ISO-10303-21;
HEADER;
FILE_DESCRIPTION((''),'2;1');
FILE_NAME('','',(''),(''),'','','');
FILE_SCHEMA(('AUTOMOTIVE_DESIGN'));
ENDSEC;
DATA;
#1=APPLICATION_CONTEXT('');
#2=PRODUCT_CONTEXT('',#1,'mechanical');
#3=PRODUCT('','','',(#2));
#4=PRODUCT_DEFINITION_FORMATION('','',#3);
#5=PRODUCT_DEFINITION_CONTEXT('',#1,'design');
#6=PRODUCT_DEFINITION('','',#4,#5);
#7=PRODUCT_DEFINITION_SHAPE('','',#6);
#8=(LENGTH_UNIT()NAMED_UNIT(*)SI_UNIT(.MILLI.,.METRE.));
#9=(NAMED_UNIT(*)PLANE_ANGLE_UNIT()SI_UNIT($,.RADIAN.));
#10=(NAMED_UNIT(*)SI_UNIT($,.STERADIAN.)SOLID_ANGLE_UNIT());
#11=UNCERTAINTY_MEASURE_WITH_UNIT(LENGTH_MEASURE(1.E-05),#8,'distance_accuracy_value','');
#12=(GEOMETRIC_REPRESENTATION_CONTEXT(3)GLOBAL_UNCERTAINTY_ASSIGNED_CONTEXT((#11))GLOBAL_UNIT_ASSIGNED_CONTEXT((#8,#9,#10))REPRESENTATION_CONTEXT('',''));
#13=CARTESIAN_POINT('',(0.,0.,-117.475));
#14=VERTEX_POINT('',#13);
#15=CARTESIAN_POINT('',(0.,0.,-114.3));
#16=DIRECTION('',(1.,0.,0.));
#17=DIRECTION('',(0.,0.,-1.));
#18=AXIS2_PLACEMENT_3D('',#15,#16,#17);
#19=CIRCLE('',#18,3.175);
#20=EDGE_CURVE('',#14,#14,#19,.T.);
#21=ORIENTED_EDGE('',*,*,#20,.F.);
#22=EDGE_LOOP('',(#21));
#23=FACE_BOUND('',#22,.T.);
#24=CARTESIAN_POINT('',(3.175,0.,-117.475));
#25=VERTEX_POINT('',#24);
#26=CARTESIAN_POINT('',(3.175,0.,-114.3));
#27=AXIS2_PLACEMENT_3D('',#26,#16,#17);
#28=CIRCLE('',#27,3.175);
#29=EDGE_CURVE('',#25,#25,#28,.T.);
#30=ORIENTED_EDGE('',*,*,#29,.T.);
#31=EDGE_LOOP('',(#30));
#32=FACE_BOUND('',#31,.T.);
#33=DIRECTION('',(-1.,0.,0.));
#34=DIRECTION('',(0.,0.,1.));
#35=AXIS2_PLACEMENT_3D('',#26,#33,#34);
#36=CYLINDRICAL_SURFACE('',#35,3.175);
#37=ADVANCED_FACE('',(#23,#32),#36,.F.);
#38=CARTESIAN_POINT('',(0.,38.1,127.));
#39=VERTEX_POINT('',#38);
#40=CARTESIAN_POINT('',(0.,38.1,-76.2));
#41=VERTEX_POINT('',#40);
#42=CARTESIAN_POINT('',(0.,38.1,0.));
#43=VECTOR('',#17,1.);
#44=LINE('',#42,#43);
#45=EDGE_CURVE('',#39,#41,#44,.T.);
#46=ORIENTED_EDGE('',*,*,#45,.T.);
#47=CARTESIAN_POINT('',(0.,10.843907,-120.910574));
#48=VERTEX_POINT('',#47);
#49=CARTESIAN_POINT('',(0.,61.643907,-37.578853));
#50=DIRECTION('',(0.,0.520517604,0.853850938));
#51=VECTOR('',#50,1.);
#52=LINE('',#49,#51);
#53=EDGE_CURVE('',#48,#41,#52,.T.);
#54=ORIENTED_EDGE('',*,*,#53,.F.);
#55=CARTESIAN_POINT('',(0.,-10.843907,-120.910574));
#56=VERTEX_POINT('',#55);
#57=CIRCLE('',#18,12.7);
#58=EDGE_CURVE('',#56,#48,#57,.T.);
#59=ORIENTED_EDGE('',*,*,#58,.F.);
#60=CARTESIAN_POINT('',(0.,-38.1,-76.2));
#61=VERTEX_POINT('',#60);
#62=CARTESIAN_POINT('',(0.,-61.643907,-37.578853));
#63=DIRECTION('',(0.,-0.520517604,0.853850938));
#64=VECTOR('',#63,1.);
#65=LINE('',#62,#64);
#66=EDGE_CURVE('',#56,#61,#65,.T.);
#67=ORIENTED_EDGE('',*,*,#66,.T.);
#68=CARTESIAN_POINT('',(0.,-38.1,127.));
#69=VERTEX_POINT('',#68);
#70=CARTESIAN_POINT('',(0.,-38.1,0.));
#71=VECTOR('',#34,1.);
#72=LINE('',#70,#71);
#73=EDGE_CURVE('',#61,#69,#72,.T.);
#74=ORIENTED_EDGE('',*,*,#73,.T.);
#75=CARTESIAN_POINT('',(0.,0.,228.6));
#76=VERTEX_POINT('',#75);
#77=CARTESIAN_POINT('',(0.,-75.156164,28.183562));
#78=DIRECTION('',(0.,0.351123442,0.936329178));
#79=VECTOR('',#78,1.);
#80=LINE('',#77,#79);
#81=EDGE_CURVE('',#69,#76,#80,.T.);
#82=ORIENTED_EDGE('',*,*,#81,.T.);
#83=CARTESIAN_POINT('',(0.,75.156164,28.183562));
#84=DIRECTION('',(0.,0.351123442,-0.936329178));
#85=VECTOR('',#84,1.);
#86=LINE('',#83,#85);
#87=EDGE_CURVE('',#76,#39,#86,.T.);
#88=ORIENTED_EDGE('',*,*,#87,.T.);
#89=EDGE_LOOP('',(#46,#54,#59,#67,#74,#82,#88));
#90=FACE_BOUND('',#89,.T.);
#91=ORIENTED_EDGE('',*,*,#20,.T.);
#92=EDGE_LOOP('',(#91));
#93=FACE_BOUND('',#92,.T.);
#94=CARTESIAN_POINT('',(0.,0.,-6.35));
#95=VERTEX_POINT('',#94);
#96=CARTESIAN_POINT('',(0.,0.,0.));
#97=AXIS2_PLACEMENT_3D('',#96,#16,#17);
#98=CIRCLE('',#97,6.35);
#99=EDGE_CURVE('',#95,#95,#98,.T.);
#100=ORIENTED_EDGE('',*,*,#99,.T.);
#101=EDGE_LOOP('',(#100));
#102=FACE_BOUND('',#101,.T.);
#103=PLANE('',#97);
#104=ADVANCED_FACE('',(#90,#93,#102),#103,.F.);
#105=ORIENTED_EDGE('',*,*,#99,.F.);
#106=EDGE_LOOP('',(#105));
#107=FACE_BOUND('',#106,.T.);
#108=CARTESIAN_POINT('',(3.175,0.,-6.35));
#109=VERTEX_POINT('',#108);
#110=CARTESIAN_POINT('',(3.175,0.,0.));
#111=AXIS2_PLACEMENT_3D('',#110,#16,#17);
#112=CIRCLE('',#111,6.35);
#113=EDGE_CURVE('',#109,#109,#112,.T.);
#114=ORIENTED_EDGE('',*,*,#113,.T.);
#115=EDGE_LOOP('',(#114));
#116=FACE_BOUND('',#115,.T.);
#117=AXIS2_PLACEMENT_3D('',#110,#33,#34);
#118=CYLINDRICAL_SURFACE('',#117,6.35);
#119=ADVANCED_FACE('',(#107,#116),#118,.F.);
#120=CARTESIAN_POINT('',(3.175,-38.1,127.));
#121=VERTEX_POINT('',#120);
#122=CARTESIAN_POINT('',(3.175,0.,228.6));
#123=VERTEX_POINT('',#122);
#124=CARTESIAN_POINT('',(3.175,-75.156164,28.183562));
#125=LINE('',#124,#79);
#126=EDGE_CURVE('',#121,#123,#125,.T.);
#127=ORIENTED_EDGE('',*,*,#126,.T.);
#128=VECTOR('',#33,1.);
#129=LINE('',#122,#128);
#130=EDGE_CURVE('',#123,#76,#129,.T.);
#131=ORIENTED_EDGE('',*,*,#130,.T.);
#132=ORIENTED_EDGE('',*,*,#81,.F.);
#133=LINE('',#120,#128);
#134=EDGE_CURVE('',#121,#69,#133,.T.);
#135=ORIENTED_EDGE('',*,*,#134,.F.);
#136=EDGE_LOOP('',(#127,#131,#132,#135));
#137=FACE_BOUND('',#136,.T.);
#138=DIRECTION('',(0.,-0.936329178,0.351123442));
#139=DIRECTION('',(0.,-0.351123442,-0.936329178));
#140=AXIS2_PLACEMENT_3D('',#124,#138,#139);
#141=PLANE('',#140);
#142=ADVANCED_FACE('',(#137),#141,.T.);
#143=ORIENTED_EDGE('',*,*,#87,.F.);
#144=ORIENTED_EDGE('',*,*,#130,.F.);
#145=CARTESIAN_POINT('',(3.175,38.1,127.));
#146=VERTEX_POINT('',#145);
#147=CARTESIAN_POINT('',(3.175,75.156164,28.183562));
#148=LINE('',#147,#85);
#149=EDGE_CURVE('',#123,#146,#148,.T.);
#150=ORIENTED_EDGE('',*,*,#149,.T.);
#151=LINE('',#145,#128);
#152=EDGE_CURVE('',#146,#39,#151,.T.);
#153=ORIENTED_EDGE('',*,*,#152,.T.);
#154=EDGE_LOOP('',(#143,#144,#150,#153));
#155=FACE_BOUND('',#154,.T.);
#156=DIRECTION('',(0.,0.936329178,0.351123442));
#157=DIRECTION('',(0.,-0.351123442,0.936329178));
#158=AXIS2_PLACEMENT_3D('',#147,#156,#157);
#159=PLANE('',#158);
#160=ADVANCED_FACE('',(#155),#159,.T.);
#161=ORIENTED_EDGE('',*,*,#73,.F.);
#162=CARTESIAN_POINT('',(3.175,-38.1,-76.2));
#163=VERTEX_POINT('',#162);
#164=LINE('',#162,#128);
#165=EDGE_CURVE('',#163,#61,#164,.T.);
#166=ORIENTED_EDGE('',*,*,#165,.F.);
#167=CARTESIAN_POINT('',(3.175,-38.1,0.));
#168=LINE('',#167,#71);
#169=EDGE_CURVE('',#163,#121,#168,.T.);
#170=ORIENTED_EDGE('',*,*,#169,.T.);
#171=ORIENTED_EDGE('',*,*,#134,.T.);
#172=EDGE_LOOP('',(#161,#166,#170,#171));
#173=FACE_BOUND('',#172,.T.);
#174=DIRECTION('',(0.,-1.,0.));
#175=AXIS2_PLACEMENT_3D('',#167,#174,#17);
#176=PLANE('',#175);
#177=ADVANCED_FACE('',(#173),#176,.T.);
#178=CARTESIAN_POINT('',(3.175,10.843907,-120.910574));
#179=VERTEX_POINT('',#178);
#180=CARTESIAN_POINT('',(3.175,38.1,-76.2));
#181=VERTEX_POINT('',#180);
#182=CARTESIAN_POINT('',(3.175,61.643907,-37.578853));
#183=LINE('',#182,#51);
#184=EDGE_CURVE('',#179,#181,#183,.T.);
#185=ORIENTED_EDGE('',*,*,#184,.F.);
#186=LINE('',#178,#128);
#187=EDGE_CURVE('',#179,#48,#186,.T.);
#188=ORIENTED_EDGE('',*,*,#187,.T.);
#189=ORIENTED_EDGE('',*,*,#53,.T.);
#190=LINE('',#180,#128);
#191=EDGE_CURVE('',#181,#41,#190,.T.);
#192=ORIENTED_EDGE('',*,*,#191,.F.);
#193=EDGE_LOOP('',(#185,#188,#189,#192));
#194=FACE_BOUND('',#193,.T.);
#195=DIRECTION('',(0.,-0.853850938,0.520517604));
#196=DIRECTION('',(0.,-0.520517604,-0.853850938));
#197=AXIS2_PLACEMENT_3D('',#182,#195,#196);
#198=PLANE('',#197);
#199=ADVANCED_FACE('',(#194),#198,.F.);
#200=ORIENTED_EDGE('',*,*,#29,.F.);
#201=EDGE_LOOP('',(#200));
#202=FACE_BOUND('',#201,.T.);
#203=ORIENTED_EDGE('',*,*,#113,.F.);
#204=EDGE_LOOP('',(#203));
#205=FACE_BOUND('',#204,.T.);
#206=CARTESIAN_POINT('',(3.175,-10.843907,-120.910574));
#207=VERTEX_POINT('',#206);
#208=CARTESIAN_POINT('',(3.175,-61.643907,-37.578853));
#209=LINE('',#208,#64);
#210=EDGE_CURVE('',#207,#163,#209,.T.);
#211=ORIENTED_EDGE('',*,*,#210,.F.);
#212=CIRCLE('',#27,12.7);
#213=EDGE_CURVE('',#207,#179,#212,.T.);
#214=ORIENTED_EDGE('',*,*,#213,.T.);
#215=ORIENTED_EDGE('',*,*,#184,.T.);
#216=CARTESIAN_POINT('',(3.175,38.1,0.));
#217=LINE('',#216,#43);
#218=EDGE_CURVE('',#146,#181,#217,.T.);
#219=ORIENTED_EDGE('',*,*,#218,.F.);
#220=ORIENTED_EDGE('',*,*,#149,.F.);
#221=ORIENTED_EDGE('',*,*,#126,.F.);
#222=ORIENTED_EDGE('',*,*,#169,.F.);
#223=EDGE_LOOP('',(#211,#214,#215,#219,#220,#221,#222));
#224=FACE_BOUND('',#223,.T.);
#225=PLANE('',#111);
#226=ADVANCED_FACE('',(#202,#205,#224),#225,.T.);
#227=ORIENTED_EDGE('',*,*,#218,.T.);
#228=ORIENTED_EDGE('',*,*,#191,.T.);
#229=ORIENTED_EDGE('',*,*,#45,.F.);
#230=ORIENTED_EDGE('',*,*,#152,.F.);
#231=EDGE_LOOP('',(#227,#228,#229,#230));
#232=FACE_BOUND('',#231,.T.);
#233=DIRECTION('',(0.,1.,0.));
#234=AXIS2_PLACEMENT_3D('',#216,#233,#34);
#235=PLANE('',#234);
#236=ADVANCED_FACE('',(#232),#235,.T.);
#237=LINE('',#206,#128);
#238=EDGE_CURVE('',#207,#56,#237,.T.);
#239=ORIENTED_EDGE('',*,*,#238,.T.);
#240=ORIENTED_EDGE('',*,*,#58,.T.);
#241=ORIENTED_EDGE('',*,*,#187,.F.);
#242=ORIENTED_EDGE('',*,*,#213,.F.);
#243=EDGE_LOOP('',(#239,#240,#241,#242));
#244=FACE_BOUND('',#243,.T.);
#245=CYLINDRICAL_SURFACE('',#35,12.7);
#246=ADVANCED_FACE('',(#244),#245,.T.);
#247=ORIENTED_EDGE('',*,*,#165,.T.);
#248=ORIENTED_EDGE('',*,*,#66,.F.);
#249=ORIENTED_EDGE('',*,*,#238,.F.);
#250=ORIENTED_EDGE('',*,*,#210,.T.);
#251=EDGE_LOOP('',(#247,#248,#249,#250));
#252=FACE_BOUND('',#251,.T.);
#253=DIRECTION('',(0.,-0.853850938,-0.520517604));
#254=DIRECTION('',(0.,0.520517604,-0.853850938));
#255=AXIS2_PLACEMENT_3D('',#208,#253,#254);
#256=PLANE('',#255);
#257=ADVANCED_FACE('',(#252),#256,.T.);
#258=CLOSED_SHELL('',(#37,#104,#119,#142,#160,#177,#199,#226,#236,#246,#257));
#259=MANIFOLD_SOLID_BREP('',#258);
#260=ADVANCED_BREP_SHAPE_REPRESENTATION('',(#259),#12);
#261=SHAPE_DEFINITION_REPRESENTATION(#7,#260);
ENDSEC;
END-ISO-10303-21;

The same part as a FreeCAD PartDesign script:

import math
import FreeCAD as App
import Part
import Sketcher
from FreeCAD import Vector
Q = App.Units.Quantity

doc = App.newDocument("Part")
body = doc.addObject("PartDesign::Body", "Body")

sketch1 = body.newObject("Sketcher::SketchObject", "Sketch")
sketch1.AttachmentSupport = (doc.getObject("YZ_Plane"), [""])
sketch1.MapMode = "FlatFace"
sketch1.addGeometry([
    Part.LineSegment(Vector(0, 228.6, 0), Vector(-38.1, 127, 0)),
    Part.LineSegment(Vector(-38.1, 127, 0), Vector(-38.1, -76.2, 0)),
    Part.LineSegment(Vector(-38.1, -76.2, 0), Vector(-16.3, -111.9, 0)),
    Part.LineSegment(Vector(-16.3, -111.9, 0), Vector(-10.8, -120.9, 0)),
    Part.ArcOfCircle(Part.Circle(Vector(0, -114.3, 0), Vector(0, 0, 1), 12.7), math.radians(-149), math.radians(-31)),
    Part.LineSegment(Vector(10.8, -120.9, 0), Vector(16.3, -111.9, 0)),
    Part.LineSegment(Vector(16.3, -111.9, 0), Vector(38.1, -76.2, 0)),
    Part.LineSegment(Vector(38.1, -76.2, 0), Vector(38.1, 127, 0)),
    Part.LineSegment(Vector(38.1, 127, 0), Vector(0, 228.6, 0)),
    Part.Circle(Vector(0, 0, 0), Vector(0, 0, 1), 6.3),
    Part.Circle(Vector(0, -114.3, 0), Vector(0, 0, 1), 3.2),
], False)
sketch1.addConstraint([
    Sketcher.Constraint("Coincident", 0, 2, 1, 1),
    Sketcher.Constraint("Coincident", 1, 2, 2, 1),
    Sketcher.Constraint("Coincident", 2, 2, 3, 1),
    Sketcher.Constraint("Tangent", 3, 2, 4, 1),
    Sketcher.Constraint("Tangent", 4, 2, 5, 1),
    Sketcher.Constraint("Coincident", 5, 2, 6, 1),
    Sketcher.Constraint("Coincident", 6, 2, 7, 1),
    Sketcher.Constraint("Coincident", 7, 2, 8, 1),
    Sketcher.Constraint("Coincident", 8, 2, 0, 1),
    Sketcher.Constraint("Vertical", 1),
    Sketcher.Constraint("Vertical", 7),
    Sketcher.Constraint("Coincident", 9, 3, -1, 1),
    Sketcher.Constraint("Coincident", 10, 3, 4, 3),
    Sketcher.Constraint("Symmetric", 3, 2, 4, 2, -2),
    Sketcher.Constraint("Symmetric", 1, 2, 6, 2, -2),
    Sketcher.Constraint("PointOnObject", 8, 2, -2),
    Sketcher.Constraint("Parallel", 2, 3),
    Sketcher.Constraint("Horizontal", 2, 2, 5, 2),
    Sketcher.Constraint("Horizontal", 0, 2, 7, 2),
    Sketcher.Constraint("Diameter", 9, Q("0.5 in")),
    Sketcher.Constraint("Radius", 4, Q("0.5 in")),
    Sketcher.Constraint("Diameter", 10, Q("0.25 in")),
    Sketcher.Constraint("DistanceY", 1, 2, 1, 1, Q("8 in")),
    Sketcher.Constraint("DistanceY", -1, 1, 0, 2, Q("5 in")),
    Sketcher.Constraint("DistanceY", -1, 1, 8, 2, Q("9 in")),
    Sketcher.Constraint("DistanceX", 0, 2, 7, 2, Q("3 in")),
    Sketcher.Constraint("DistanceY", 4, 3, -1, 1, Q("4.5 in")),
    Sketcher.Constraint("DistanceY", 2, 2, -1, 1, 111.904101),
])
pad1 = body.newObject("PartDesign::Pad", "Pad")
pad1.Profile = sketch1
pad1.Length = Q("0.125 in")

doc.recompute()
